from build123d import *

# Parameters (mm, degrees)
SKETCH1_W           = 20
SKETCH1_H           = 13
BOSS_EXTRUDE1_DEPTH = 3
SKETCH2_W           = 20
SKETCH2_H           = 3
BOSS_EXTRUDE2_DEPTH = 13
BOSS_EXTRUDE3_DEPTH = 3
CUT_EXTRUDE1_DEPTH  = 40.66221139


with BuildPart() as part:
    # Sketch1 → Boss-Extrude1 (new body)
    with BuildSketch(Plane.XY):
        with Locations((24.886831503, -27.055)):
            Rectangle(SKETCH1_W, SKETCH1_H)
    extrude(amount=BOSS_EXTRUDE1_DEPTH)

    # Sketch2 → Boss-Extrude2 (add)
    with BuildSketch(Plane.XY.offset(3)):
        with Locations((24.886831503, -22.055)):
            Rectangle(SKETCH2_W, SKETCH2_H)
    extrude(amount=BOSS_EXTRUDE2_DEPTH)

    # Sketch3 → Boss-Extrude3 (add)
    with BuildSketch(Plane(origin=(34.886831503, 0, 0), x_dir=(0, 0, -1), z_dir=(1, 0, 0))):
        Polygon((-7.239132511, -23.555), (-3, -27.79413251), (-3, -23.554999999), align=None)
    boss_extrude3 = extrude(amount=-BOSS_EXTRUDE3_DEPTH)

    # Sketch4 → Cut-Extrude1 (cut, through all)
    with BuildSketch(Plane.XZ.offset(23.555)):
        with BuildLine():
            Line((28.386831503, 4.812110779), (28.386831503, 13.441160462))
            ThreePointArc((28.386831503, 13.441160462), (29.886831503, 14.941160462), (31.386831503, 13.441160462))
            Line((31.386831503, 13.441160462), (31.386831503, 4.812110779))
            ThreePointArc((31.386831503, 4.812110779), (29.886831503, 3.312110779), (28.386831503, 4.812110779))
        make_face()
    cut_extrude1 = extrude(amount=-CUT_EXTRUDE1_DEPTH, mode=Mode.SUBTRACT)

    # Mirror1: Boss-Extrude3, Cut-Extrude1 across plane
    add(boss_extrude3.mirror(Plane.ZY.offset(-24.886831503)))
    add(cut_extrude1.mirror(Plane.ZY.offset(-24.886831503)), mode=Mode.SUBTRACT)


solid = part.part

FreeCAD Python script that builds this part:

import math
import FreeCAD as App
import Part
import Sketcher
Q = App.Units.Quantity

doc = App.newDocument("Part")
body = doc.addObject("PartDesign::Body", "Body")

# Sketch on XY plane
sketch1 = body.newObject("Sketcher::SketchObject", "Sketch")
sketch1.AttachmentSupport = (doc.getObject("XY_Plane"), [""])
sketch1.MapMode = "FlatFace"
sketch1.addGeometry([
    Part.LineSegment(App.Vector(15, -21, 0), App.Vector(15, -34, 0)),
    Part.LineSegment(App.Vector(15, -34, 0), App.Vector(35, -34, 0)),
    Part.LineSegment(App.Vector(35, -34, 0), App.Vector(35, -21, 0)),
    Part.LineSegment(App.Vector(35, -21, 0), App.Vector(15, -21, 0)),
], False)
sketch1.addConstraint([
    Sketcher.Constraint("Coincident", 0, 2, 1, 1),
    Sketcher.Constraint("Coincident", 1, 2, 2, 1),
    Sketcher.Constraint("Coincident", 2, 2, 3, 1),
    Sketcher.Constraint("Coincident", 3, 2, 0, 1),
    Sketcher.Constraint("Vertical", 0),
    Sketcher.Constraint("Horizontal", 1),
    Sketcher.Constraint("Vertical", 2),
    Sketcher.Constraint("Horizontal", 3),
    Sketcher.Constraint("DistanceX", 1, 1, 1, 2, Q("20 mm")),
    Sketcher.Constraint("DistanceY", 0, 2, 0, 1, Q("13 mm")),
    Sketcher.Constraint("DistanceY", 0, 2, -1, 1, Q("33.555 mm")),
    Sketcher.Constraint("DistanceX", -1, 1, 0, 2, Q("14.886832 mm")),
])
pad1 = body.newObject("PartDesign::Pad", "Pad")
pad1.Profile = sketch1
pad1.Length = 3

# Sketch on XY plane
sketch2 = body.newObject("Sketcher::SketchObject", "Sketch001")
sketch2.AttachmentSupport = (doc.getObject("XY_Plane"), [""])
sketch2.MapMode = "FlatFace"
sketch2.AttachmentOffset = App.Placement(App.Vector(0, 0, 3), App.Rotation())
sketch2.addGeometry([
    Part.LineSegment(App.Vector(14.9, -20.6, 0), App.Vector(14.9, -23.6, 0)),
    Part.LineSegment(App.Vector(14.9, -23.6, 0), App.Vector(34.9, -23.6, 0)),
    Part.LineSegment(App.Vector(34.9, -23.6, 0), App.Vector(34.9, -20.6, 0)),
    Part.LineSegment(App.Vector(34.9, -20.6, 0), App.Vector(14.9, -20.6, 0)),
], False)
sketch2.addConstraint([
    Sketcher.Constraint("Coincident", 0, 2, 1, 1),
    Sketcher.Constraint("Coincident", 1, 2, 2, 1),
    Sketcher.Constraint("Coincident", 2, 2, 3, 1),
    Sketcher.Constraint("Coincident", 3, 2, 0, 1),
    Sketcher.Constraint("Vertical", 0),
    Sketcher.Constraint("Horizontal", 1),
    Sketcher.Constraint("Vertical", 2),
    Sketcher.Constraint("Horizontal", 3),
    Sketcher.Constraint("DistanceX", 1, 1, 1, 2, Q("20 mm")),
    Sketcher.Constraint("DistanceY", 0, 2, 0, 1, Q("3 mm")),
    Sketcher.Constraint("DistanceY", 0, 2, -1, 1, Q("23.555 mm")),
    Sketcher.Constraint("DistanceX", -1, 1, 0, 2, Q("14.886832 mm")),
])
pad2 = body.newObject("PartDesign::Pad", "Pad001")
pad2.Profile = sketch2
pad2.Length = 13

# Sketch on YZ plane
sketch3 = body.newObject("Sketcher::SketchObject", "Sketch002")
sketch3.AttachmentSupport = (doc.getObject("YZ_Plane"), [""])
sketch3.MapMode = "FlatFace"
sketch3.AttachmentOffset = App.Placement(App.Vector(0, 0, 34.886832), App.Rotation())
sketch3.addGeometry([
    Part.LineSegment(App.Vector(-23.6, 7.2, 0), App.Vector(-27.8, 3, 0)),
    Part.LineSegment(App.Vector(-27.8, 3, 0), App.Vector(-23.6, 3, 0)),
    Part.LineSegment(App.Vector(-23.6, 3, 0), App.Vector(-23.6, 7.2, 0)),
], False)
sketch3.addConstraint([
    Sketcher.Constraint("Coincident", 0, 2, 1, 1),
    Sketcher.Constraint("Coincident", 1, 2, 2, 1),
    Sketcher.Constraint("Coincident", 2, 2, 0, 1),
    Sketcher.Constraint("Horizontal", 1),
    Sketcher.Constraint("Vertical", 2),
    Sketcher.Constraint("Equal", 1, 2),
    Sketcher.Constraint("DistanceY", -1, 1, 0, 2, Q("3 mm")),
    Sketcher.Constraint("DistanceX", 1, 2, -1, 1, Q("23.555 mm")),
    Sketcher.Constraint("Distance", 0, Q("5.995039 mm")),
])
pad3 = body.newObject("PartDesign::Pad", "Pad002")
pad3.Profile = sketch3
pad3.Length = 3
pad3.Reversed = True

# Sketch on XZ plane
sketch4 = body.newObject("Sketcher::SketchObject", "Sketch003")
sketch4.AttachmentSupport = (doc.getObject("XZ_Plane"), [""])
sketch4.MapMode = "FlatFace"
sketch4.AttachmentOffset = App.Placement(App.Vector(0, 0, 23.555), App.Rotation())
sketch4.addGeometry([
    Part.LineSegment(App.Vector(28.4, 13.4, 0), App.Vector(28.4, 4.8, 0)),
    Part.ArcOfCircle(Part.Circle(App.Vector(29.9, 4.8, 0), App.Vector(0, 0, 1), 1.5), math.radians(180), math.radians(360)),
    Part.LineSegment(App.Vector(31.4, 4.8, 0), App.Vector(31.4, 13.4, 0)),
    Part.ArcOfCircle(Part.Circle(App.Vector(29.9, 13.4, 0), App.Vector(0, 0, 1), 1.5), math.radians(0), math.radians(180)),
], False)
sketch4.addConstraint([
    Sketcher.Constraint("Tangent", 0, 2, 1, 1),
    Sketcher.Constraint("Tangent", 1, 2, 2, 1),
    Sketcher.Constraint("Tangent", 2, 2, 3, 1),
    Sketcher.Constraint("Tangent", 3, 2, 0, 1),
    Sketcher.Constraint("Vertical", 0),
    Sketcher.Constraint("Vertical", 2),
    Sketcher.Constraint("Radius", 1, Q("1.5 mm")),
    Sketcher.Constraint("DistanceY", 0, 2, 0, 1, Q("8.62905 mm")),
    Sketcher.Constraint("DistanceX", -1, 1, 1, 3, Q("29.886832 mm")),
    Sketcher.Constraint("DistanceY", -1, 1, 1, 3, Q("4.812111 mm")),
])
pocket1 = body.newObject("PartDesign::Pocket", "Pocket")
pocket1.Profile = sketch4
pocket1.Type = "ThroughAll"
doc.recompute()

datumplane = body.newObject("PartDesign::Plane", "DatumPlane")
datumplane.AttachmentSupport = (doc.getObject("YZ_Plane"), [""])
datumplane.MapMode = "FlatFace"
datumplane.AttachmentOffset = App.Placement(App.Vector(0, 0, 24.886832), App.Rotation())
mirrored = body.newObject("PartDesign::Mirrored", "Mirrored")
mirrored.Originals = [pad3, pocket1]
mirrored.MirrorPlane = (datumplane, [""])
body.Tip = mirrored

doc.recompute()
